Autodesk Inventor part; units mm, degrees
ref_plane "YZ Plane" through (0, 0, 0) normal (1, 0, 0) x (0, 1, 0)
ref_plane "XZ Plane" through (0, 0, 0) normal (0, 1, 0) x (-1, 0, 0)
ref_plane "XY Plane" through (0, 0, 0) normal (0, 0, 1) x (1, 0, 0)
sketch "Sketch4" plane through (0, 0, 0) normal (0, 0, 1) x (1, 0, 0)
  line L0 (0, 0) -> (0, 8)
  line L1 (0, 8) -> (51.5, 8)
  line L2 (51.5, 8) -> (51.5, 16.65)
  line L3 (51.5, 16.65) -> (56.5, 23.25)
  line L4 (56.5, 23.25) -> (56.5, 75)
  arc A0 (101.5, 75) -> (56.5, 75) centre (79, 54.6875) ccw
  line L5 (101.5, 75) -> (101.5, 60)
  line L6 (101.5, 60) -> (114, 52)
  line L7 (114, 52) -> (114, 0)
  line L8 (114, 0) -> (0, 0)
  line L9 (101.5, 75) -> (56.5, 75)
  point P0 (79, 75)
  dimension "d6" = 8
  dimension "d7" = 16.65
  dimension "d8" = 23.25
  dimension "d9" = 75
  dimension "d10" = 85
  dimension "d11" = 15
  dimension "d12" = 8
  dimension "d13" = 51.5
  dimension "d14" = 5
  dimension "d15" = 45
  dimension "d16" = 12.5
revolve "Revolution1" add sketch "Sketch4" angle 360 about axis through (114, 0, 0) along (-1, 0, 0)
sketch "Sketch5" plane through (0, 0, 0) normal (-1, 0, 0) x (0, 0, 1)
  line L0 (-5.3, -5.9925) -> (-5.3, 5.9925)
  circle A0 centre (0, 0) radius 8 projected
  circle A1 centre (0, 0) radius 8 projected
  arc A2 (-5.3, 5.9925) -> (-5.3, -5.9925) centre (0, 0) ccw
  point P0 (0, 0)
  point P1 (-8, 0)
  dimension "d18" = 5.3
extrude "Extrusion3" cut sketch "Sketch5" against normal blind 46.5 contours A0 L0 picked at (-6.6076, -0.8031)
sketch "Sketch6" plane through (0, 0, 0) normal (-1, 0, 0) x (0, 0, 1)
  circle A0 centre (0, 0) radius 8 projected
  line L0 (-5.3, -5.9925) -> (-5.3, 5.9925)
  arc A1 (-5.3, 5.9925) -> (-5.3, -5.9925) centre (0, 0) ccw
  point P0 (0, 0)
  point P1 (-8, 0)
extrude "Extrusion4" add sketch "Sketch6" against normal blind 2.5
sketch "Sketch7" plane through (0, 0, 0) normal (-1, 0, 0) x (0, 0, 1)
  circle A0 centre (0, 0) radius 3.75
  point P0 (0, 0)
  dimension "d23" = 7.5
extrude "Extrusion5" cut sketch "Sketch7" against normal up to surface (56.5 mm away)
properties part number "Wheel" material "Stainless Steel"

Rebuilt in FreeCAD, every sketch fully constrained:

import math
import FreeCAD as App
import Part
import Sketcher

doc = App.newDocument("Part")
body = doc.addObject("PartDesign::Body", "Body")

sketch1 = body.newObject("Sketcher::SketchObject", "Sketch")
sketch1.AttachmentSupport = (doc.getObject("XY_Plane"), [""])
sketch1.MapMode = "FlatFace"
sketch1.addGeometry([
    Part.LineSegment(App.Vector(0, 8, 0), App.Vector(0, 0, 0)),
    Part.LineSegment(App.Vector(0, 0, 0), App.Vector(114, 0, 0)),
    Part.LineSegment(App.Vector(114, 0, 0), App.Vector(114, 52, 0)),
    Part.LineSegment(App.Vector(114, 52, 0), App.Vector(102, 60, 0)),
    Part.LineSegment(App.Vector(102, 60, 0), App.Vector(102, 75, 0)),
    Part.ArcOfCircle(Part.Circle(App.Vector(79, 55, 0), App.Vector(0, 0, 1), 30), math.radians(42), math.radians(138)),
    Part.LineSegment(App.Vector(56, 75, 0), App.Vector(56, 23, 0)),
    Part.LineSegment(App.Vector(56, 23, 0), App.Vector(52, 17, 0)),
    Part.LineSegment(App.Vector(52, 17, 0), App.Vector(52, 8, 0)),
    Part.LineSegment(App.Vector(52, 8, 0), App.Vector(0, 8, 0)),
], False)
sketch1.addConstraint([
    Sketcher.Constraint("Coincident", 0, 2, 1, 1),
    Sketcher.Constraint("Coincident", 1, 2, 2, 1),
    Sketcher.Constraint("Coincident", 2, 2, 3, 1),
    Sketcher.Constraint("Coincident", 3, 2, 4, 1),
    Sketcher.Constraint("Coincident", 4, 2, 5, 1),
    Sketcher.Constraint("Coincident", 5, 2, 6, 1),
    Sketcher.Constraint("Coincident", 6, 2, 7, 1),
    Sketcher.Constraint("Coincident", 7, 2, 8, 1),
    Sketcher.Constraint("Coincident", 8, 2, 9, 1),
    Sketcher.Constraint("Coincident", 9, 2, 0, 1),
    Sketcher.Constraint("Vertical", 0),
    Sketcher.Constraint("Horizontal", 1),
    Sketcher.Constraint("Vertical", 2),
    Sketcher.Constraint("Vertical", 4),
    Sketcher.Constraint("Vertical", 6),
    Sketcher.Constraint("Vertical", 8),
    Sketcher.Constraint("Horizontal", 9),
    Sketcher.Constraint("Coincident", 0, 2, -1, 1),
    Sketcher.Constraint("Horizontal", 4, 2, 5, 2),
    Sketcher.Constraint("DistanceY", 0, 2, 0, 1, 8.0),
    Sketcher.Constraint("DistanceY", 4, 1, 4, 2, 15.0),
    Sketcher.Constraint("DistanceX", 9, 2, 9, 1, 51.5),
    Sketcher.Constraint("DistanceY", -1, 1, 4, 2, 75.0),
    Sketcher.Constraint("DistanceY", 2, 2, 3, 2, 8.0),
    Sketcher.Constraint("DistanceX", 5, 2, 4, 2, 45.0),
    Sketcher.Constraint("DistanceX", 7, 2, 6, 2, 5.0),
    Sketcher.Constraint("DistanceX", 3, 2, 2, 2, 12.5),
    Sketcher.Constraint("DistanceY", -1, 1, 6, 2, 23.25),
    Sketcher.Constraint("DistanceY", -1, 1, 7, 2, 16.65),
    Sketcher.Constraint("Radius", 5, 30.3125),
])
revolution = body.newObject("PartDesign::Revolution", "Revolution")
revolution.Profile = sketch1
revolution.ReferenceAxis = (sketch1, ["H_Axis"])
revolution.Angle = 360

sketch2 = body.newObject("Sketcher::SketchObject", "Sketch001")
sketch2.AttachmentSupport = (doc.getObject("YZ_Plane"), [""])
sketch2.MapMode = "FlatFace"
sketch2.addGeometry([
    Part.ArcOfCircle(Part.Circle(App.Vector(0, 0, 0), App.Vector(0, 0, 1), 8), math.radians(-139), math.radians(-41)),
    Part.LineSegment(App.Vector(6, -5, 0), App.Vector(-6, -5, 0)),
], False)
sketch2.addConstraint([
    Sketcher.Constraint("Coincident", 0, 1, 1, 2),
    Sketcher.Constraint("Coincident", 1, 1, 0, 2),
    Sketcher.Constraint("Horizontal", 1),
    Sketcher.Constraint("Coincident", 0, 3, -1, 1),
    Sketcher.Constraint("Radius", 0, 8.0),
    Sketcher.Constraint("DistanceY", 0, 1, -1, 1, 5.3),
])
pocket1 = body.newObject("PartDesign::Pocket", "Pocket")
pocket1.Profile = sketch2
pocket1.Length = 46.5
pocket1.Reversed = True

sketch3 = body.newObject("Sketcher::SketchObject", "Sketch002")
sketch3.AttachmentSupport = (doc.getObject("YZ_Plane"), [""])
sketch3.MapMode = "FlatFace"
sketch3.addGeometry(Part.Circle(App.Vector(0, 0, 0), App.Vector(0, 0, 1), 8), False)
sketch3.addConstraint([
    Sketcher.Constraint("Coincident", 0, 3, -1, 1),
    Sketcher.Constraint("Diameter", 0, 16.0),
])
pad1 = body.newObject("PartDesign::Pad", "Pad")
pad1.Profile = sketch3
pad1.Length = 2.5

sketch4 = body.newObject("Sketcher::SketchObject", "Sketch003")
sketch4.AttachmentSupport = (doc.getObject("YZ_Plane"), [""])
sketch4.MapMode = "FlatFace"
sketch4.addGeometry(Part.Circle(App.Vector(0, 0, 0), App.Vector(0, 0, 1), 3.8), False)
sketch4.addConstraint([
    Sketcher.Constraint("Coincident", 0, 3, -1, 1),
    Sketcher.Constraint("Diameter", 0, 7.5),
])
pocket2 = body.newObject("PartDesign::Pocket", "Pocket001")
pocket2.Profile = sketch4
pocket2.Length = 56.5
pocket2.Reversed = True

doc.recompute()
